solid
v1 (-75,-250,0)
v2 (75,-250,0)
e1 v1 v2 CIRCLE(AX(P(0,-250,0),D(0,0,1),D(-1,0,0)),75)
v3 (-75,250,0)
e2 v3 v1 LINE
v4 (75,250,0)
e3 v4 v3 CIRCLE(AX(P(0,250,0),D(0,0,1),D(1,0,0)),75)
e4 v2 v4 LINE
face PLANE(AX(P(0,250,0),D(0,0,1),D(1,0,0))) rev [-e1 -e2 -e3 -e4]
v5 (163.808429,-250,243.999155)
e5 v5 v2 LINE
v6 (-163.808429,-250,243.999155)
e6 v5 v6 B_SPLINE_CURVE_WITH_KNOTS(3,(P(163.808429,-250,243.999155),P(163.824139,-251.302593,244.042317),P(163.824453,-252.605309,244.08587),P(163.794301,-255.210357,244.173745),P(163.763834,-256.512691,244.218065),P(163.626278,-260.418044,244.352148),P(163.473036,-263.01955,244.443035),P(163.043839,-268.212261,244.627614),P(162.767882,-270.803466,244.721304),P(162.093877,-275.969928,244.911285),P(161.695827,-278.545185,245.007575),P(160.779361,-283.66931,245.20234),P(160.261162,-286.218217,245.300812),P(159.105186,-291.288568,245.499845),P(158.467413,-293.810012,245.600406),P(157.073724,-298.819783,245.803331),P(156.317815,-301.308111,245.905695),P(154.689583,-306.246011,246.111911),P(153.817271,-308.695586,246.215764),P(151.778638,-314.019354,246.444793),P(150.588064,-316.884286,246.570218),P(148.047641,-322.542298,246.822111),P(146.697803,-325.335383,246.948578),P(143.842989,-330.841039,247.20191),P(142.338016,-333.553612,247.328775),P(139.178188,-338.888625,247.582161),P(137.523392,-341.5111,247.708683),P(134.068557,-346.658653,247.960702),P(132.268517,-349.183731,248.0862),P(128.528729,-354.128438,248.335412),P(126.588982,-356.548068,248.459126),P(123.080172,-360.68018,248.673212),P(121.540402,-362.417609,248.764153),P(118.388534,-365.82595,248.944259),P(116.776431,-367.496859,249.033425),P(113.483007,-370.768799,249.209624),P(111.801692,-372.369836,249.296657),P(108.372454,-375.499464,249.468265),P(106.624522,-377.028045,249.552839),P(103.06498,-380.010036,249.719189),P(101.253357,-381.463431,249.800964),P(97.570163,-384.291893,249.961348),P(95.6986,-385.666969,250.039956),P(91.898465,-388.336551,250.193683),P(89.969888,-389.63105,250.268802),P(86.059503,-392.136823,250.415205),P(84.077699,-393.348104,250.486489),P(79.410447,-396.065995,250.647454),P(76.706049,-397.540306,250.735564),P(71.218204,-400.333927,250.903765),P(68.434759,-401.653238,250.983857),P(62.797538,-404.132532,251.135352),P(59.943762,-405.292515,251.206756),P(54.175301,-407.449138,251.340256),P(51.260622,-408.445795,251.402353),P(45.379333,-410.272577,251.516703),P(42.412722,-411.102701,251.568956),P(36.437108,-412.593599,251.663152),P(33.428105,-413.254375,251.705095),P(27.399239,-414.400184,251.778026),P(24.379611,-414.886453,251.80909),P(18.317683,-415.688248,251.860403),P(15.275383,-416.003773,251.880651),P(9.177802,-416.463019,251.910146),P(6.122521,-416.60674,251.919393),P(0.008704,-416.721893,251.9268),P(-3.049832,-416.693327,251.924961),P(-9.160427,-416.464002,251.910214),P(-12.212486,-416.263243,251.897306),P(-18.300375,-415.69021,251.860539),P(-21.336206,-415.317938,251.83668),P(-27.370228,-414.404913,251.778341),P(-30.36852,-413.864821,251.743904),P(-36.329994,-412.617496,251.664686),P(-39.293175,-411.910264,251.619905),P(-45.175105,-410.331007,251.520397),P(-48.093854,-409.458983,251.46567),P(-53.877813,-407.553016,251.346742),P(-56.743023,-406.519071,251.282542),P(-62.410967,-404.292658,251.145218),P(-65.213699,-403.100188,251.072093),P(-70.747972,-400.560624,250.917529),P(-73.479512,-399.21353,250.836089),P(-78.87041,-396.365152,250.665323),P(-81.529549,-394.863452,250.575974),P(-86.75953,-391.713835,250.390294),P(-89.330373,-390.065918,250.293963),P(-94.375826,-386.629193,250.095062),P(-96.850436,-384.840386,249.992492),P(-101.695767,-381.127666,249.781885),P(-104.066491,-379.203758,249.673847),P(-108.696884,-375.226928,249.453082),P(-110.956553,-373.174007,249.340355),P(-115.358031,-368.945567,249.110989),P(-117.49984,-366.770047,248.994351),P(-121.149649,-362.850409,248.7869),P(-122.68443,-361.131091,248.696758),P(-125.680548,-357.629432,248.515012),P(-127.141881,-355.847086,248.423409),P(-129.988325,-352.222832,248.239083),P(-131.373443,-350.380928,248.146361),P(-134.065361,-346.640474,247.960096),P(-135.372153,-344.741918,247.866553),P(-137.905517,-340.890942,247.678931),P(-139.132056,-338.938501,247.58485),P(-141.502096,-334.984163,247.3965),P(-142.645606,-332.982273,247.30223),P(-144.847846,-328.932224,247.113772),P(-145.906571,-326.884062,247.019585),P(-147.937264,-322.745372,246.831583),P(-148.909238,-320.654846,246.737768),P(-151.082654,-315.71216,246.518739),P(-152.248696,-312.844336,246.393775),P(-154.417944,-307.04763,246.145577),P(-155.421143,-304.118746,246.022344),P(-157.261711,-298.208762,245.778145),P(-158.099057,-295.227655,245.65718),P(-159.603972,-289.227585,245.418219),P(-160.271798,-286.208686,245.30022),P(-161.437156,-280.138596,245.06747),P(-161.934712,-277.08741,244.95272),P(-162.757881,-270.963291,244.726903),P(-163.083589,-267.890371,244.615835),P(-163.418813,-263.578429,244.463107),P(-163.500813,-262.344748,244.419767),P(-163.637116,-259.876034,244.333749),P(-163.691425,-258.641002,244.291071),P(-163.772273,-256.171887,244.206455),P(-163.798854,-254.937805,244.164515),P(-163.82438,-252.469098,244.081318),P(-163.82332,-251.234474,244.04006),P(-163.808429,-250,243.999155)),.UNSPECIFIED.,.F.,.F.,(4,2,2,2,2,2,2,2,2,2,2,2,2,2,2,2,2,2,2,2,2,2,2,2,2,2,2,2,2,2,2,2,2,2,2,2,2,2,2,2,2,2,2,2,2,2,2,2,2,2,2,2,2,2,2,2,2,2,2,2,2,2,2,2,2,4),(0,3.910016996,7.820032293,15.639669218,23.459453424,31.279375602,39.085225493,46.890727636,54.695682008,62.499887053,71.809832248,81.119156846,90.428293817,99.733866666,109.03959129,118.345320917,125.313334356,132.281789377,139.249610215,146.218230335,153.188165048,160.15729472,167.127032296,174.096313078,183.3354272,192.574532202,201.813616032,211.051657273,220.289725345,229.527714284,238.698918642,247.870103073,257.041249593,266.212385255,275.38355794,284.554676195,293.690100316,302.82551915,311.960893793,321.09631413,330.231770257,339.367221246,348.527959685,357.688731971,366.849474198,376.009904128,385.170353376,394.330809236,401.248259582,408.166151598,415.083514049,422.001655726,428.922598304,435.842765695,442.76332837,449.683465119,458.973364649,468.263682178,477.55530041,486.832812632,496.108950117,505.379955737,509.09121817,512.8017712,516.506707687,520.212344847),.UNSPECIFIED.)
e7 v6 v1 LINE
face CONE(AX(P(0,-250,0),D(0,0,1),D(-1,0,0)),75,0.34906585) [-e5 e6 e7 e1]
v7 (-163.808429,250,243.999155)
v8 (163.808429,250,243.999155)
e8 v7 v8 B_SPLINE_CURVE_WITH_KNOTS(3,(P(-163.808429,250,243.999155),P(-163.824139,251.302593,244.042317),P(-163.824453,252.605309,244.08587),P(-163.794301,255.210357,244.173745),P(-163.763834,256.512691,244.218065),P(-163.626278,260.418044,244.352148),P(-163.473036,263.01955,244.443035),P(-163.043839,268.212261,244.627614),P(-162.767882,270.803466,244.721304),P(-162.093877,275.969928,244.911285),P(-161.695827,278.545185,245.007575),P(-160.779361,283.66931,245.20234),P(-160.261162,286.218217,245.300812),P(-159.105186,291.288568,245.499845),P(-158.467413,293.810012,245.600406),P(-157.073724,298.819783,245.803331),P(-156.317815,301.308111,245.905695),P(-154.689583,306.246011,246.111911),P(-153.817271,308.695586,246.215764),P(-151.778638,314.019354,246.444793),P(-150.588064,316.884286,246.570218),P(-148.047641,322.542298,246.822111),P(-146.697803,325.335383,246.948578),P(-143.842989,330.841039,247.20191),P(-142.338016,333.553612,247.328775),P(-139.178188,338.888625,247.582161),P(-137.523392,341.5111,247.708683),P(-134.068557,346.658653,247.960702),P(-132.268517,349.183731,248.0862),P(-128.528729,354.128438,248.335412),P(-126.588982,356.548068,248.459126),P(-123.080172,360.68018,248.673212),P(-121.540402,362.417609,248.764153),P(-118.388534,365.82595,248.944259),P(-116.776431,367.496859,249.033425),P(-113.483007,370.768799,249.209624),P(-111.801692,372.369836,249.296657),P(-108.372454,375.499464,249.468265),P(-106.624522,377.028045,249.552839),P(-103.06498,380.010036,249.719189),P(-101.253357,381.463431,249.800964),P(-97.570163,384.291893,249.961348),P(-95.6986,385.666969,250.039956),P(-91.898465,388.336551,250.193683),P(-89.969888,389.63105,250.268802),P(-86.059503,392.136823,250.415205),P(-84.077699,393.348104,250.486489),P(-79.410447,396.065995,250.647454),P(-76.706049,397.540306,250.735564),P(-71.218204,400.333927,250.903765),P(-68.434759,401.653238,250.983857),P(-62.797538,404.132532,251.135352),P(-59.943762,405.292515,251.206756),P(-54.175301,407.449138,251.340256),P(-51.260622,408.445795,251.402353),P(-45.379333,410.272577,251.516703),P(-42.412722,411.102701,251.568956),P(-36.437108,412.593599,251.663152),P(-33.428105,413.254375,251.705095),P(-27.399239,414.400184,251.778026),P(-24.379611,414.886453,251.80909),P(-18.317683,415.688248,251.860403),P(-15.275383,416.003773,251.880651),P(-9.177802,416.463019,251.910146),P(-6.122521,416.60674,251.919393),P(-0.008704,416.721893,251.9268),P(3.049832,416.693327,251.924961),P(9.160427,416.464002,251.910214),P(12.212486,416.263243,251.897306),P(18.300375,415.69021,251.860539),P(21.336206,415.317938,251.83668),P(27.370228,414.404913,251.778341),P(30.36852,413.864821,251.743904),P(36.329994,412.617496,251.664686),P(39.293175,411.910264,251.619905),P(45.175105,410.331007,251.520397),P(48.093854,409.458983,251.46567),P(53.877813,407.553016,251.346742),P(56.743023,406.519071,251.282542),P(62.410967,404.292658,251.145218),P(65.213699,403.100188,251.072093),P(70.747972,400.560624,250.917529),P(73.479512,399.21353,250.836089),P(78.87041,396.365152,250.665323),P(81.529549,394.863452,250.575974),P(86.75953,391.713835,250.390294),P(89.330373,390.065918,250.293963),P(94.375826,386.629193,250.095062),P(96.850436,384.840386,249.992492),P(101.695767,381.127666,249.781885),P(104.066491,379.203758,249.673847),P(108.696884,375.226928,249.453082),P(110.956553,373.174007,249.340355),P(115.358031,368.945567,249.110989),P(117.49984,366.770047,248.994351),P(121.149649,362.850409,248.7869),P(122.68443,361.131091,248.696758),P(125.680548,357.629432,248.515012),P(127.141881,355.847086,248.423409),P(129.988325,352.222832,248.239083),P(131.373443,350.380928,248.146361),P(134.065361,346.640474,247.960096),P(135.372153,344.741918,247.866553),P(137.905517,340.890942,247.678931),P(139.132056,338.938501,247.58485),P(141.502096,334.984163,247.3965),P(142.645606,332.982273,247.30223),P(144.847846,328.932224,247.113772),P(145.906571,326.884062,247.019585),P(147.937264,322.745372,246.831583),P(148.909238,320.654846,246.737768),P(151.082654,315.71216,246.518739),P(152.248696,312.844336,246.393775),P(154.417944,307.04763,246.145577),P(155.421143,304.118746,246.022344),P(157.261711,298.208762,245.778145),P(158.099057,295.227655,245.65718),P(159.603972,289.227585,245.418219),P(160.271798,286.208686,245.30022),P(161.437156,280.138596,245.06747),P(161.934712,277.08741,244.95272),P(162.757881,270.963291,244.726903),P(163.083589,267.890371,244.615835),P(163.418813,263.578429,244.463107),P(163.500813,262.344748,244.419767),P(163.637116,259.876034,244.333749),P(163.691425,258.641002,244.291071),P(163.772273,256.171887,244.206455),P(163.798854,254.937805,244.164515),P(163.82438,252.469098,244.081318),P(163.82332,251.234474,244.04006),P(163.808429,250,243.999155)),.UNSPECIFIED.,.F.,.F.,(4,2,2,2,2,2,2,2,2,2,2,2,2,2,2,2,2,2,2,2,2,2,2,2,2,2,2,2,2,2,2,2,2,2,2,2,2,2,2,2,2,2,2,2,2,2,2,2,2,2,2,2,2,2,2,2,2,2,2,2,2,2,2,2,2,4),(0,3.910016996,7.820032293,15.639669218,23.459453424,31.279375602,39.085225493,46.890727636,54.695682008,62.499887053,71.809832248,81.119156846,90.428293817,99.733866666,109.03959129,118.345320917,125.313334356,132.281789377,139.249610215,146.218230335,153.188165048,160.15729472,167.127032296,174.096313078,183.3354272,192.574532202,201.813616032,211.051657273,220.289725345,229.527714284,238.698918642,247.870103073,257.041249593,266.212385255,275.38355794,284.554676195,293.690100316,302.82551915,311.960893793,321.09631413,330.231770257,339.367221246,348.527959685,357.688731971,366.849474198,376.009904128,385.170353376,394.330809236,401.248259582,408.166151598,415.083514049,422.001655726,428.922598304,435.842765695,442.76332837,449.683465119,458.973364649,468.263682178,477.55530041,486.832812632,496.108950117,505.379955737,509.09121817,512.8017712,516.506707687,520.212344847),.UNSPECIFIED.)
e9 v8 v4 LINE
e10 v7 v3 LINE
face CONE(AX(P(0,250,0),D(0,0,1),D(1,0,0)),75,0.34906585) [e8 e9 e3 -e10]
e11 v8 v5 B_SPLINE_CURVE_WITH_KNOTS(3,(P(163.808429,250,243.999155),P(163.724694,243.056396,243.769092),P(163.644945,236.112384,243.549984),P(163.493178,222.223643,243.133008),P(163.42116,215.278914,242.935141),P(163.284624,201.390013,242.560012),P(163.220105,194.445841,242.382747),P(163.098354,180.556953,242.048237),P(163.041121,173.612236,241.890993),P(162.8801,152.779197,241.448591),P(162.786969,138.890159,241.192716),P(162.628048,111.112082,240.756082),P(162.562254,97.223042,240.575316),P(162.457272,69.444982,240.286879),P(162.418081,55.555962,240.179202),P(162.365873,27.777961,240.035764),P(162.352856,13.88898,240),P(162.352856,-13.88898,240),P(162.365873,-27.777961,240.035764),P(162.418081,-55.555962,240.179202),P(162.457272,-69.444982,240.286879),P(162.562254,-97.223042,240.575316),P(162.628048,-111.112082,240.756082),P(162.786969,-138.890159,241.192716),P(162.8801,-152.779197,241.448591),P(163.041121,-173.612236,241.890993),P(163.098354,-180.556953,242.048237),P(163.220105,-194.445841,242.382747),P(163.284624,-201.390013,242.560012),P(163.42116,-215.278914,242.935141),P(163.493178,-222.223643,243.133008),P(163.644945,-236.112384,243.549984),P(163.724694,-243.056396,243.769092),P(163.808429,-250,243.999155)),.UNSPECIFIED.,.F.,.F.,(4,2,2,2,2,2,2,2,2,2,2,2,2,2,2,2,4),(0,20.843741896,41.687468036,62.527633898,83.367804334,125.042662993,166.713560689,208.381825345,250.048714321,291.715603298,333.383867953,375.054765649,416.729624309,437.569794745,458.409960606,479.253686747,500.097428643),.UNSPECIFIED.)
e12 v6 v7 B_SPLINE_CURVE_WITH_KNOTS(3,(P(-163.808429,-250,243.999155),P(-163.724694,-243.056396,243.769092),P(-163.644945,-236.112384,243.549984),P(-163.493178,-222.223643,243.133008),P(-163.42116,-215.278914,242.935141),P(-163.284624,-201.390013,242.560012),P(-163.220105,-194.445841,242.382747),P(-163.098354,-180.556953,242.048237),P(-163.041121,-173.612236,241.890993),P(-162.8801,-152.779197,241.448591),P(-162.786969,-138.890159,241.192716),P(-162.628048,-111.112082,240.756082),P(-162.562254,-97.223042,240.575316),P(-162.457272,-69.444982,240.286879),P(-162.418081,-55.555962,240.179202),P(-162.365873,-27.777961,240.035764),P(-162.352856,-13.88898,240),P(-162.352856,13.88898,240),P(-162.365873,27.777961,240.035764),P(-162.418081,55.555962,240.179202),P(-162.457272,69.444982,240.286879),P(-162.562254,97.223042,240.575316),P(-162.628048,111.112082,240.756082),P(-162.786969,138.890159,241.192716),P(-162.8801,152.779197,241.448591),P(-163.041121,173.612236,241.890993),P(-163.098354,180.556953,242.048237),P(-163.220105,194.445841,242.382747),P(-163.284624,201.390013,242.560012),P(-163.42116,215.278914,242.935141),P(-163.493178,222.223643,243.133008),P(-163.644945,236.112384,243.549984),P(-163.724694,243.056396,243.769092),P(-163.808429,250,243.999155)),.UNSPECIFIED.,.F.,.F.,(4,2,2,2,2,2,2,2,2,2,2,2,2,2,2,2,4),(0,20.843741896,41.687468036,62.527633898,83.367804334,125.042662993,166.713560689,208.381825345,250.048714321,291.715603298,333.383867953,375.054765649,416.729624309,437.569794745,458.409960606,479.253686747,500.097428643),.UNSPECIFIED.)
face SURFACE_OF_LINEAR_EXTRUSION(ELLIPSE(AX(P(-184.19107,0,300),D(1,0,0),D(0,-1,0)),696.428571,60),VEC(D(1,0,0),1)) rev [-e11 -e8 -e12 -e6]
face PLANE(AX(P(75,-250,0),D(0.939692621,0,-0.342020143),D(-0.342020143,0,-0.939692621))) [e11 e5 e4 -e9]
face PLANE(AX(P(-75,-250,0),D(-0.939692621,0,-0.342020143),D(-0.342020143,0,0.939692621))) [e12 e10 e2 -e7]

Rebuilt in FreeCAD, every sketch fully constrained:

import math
import FreeCAD as App
import Part
import Sketcher

doc = App.newDocument("Part")
params = doc.addObject("Spreadsheet::Sheet", "Params")
for row, (alias, value) in enumerate([
    ("sketch1_radius", "75 mm"),
    ("sketch1_height", "500 mm"),
    ("pad1_length", "300 mm"),
    ("pad1_taper", "20 deg"),
], start=1):
    params.set(f"A{row}", alias)
    params.set(f"B{row}", "=" + value)
    params.setAlias(f"B{row}", alias)

body = doc.addObject("PartDesign::Body", "Body")

# Sketch on XY plane
sketch1 = body.newObject("Sketcher::SketchObject", "Sketch")
sketch1.AttachmentSupport = (doc.getObject("XY_Plane"), [""])
sketch1.MapMode = "FlatFace"
sketch1.addGeometry(Part.LineSegment(App.Vector(75, -250, 0), App.Vector(75, 250, 0)), False)
sketch1.addGeometry(Part.ArcOfCircle(Part.Circle(App.Vector(0, 250, 0), App.Vector(0, 0, 1), 75), math.radians(0), math.radians(180)), False)
sketch1.addGeometry(Part.LineSegment(App.Vector(-75, 250, 0), App.Vector(-75, -250, 0)), False)
sketch1.addGeometry(Part.ArcOfCircle(Part.Circle(App.Vector(0, -250, 0), App.Vector(0, 0, 1), 75), math.radians(180), math.radians(360)), False)
sketch1.addConstraint(Sketcher.Constraint("Tangent", 0, 2, 1, 1))
sketch1.addConstraint(Sketcher.Constraint("Tangent", 1, 2, 2, 1))
sketch1.addConstraint(Sketcher.Constraint("Tangent", 2, 2, 3, 1))
sketch1.addConstraint(Sketcher.Constraint("Tangent", 3, 2, 0, 1))
sketch1.addConstraint(Sketcher.Constraint("Vertical", 0))
sketch1.addConstraint(Sketcher.Constraint("Vertical", 2))
sketch1.addConstraint(Sketcher.Constraint("Symmetric", 1, 3, 3, 3, -1, 1))
sketch1.addConstraint(Sketcher.Constraint("Radius", 1, 75.0))
sketch1.addConstraint(Sketcher.Constraint("DistanceY", 0, 1, 0, 2, 500.0))
sketch1.setExpression("Constraints[7]", "Params.sketch1_radius")
sketch1.setExpression("Constraints[8]", "Params.sketch1_height")
pad1 = body.newObject("PartDesign::Pad", "Pad")
pad1.Profile = sketch1
pad1.setExpression("Length", "Params.pad1_length")
pad1.setExpression("TaperAngle", "Params.pad1_taper")

# Sketch on YZ plane
sketch2 = body.newObject("Sketcher::SketchObject", "Sketch001")
sketch2.AttachmentSupport = (doc.getObject("YZ_Plane"), [""])
sketch2.MapMode = "FlatFace"
sketch2.addGeometry(Part.LineSegment(App.Vector(803.571429, 300, 0), App.Vector(603.571429, 329.933259, 0)), False)
sketch2.addGeometry(Part.BSplineCurve([App.Vector(603.571429, 329.933259, 0), App.Vector(189.148944, 391.958337, 0), App.Vector(-447.427288, 345.979169, 0), App.Vector(-1084.00352, 300, 0), App.Vector(-447.427288, 254.020831, 0), App.Vector(189.148944, 208.041663, 0), App.Vector(603.571429, 270.066741, 0)], [3, 2, 2, 3], [3.663907475, 5.410092697, 7.156277918, 8.902463139], False, 2, [1, 0.642459696, 1, 0.642459696, 1, 0.642459696, 1], False), False)
sketch2.addGeometry(Part.LineSegment(App.Vector(603.571429, 270.066741, 0), App.Vector(803.571429, 300, 0)), False)
sketch2.addConstraint(Sketcher.Constraint("Block", 1))
sketch2.addConstraint(Sketcher.Constraint("Coincident", 0, 2, 1, 1))
sketch2.addConstraint(Sketcher.Constraint("Coincident", 1, 2, 2, 1))
sketch2.addConstraint(Sketcher.Constraint("Coincident", 2, 2, 0, 1))
sketch2.addConstraint(Sketcher.Constraint("DistanceY", -1, 1, 2, 2, 300.0))
sketch2.addConstraint(Sketcher.Constraint("DistanceX", 0, 2, 2, 2, 200.0))
pocket1 = body.newObject("PartDesign::Pocket", "Pocket")
pocket1.Profile = sketch2
pocket1.Type = "ThroughAll"
pocket1.Midplane = True

doc.recompute()
